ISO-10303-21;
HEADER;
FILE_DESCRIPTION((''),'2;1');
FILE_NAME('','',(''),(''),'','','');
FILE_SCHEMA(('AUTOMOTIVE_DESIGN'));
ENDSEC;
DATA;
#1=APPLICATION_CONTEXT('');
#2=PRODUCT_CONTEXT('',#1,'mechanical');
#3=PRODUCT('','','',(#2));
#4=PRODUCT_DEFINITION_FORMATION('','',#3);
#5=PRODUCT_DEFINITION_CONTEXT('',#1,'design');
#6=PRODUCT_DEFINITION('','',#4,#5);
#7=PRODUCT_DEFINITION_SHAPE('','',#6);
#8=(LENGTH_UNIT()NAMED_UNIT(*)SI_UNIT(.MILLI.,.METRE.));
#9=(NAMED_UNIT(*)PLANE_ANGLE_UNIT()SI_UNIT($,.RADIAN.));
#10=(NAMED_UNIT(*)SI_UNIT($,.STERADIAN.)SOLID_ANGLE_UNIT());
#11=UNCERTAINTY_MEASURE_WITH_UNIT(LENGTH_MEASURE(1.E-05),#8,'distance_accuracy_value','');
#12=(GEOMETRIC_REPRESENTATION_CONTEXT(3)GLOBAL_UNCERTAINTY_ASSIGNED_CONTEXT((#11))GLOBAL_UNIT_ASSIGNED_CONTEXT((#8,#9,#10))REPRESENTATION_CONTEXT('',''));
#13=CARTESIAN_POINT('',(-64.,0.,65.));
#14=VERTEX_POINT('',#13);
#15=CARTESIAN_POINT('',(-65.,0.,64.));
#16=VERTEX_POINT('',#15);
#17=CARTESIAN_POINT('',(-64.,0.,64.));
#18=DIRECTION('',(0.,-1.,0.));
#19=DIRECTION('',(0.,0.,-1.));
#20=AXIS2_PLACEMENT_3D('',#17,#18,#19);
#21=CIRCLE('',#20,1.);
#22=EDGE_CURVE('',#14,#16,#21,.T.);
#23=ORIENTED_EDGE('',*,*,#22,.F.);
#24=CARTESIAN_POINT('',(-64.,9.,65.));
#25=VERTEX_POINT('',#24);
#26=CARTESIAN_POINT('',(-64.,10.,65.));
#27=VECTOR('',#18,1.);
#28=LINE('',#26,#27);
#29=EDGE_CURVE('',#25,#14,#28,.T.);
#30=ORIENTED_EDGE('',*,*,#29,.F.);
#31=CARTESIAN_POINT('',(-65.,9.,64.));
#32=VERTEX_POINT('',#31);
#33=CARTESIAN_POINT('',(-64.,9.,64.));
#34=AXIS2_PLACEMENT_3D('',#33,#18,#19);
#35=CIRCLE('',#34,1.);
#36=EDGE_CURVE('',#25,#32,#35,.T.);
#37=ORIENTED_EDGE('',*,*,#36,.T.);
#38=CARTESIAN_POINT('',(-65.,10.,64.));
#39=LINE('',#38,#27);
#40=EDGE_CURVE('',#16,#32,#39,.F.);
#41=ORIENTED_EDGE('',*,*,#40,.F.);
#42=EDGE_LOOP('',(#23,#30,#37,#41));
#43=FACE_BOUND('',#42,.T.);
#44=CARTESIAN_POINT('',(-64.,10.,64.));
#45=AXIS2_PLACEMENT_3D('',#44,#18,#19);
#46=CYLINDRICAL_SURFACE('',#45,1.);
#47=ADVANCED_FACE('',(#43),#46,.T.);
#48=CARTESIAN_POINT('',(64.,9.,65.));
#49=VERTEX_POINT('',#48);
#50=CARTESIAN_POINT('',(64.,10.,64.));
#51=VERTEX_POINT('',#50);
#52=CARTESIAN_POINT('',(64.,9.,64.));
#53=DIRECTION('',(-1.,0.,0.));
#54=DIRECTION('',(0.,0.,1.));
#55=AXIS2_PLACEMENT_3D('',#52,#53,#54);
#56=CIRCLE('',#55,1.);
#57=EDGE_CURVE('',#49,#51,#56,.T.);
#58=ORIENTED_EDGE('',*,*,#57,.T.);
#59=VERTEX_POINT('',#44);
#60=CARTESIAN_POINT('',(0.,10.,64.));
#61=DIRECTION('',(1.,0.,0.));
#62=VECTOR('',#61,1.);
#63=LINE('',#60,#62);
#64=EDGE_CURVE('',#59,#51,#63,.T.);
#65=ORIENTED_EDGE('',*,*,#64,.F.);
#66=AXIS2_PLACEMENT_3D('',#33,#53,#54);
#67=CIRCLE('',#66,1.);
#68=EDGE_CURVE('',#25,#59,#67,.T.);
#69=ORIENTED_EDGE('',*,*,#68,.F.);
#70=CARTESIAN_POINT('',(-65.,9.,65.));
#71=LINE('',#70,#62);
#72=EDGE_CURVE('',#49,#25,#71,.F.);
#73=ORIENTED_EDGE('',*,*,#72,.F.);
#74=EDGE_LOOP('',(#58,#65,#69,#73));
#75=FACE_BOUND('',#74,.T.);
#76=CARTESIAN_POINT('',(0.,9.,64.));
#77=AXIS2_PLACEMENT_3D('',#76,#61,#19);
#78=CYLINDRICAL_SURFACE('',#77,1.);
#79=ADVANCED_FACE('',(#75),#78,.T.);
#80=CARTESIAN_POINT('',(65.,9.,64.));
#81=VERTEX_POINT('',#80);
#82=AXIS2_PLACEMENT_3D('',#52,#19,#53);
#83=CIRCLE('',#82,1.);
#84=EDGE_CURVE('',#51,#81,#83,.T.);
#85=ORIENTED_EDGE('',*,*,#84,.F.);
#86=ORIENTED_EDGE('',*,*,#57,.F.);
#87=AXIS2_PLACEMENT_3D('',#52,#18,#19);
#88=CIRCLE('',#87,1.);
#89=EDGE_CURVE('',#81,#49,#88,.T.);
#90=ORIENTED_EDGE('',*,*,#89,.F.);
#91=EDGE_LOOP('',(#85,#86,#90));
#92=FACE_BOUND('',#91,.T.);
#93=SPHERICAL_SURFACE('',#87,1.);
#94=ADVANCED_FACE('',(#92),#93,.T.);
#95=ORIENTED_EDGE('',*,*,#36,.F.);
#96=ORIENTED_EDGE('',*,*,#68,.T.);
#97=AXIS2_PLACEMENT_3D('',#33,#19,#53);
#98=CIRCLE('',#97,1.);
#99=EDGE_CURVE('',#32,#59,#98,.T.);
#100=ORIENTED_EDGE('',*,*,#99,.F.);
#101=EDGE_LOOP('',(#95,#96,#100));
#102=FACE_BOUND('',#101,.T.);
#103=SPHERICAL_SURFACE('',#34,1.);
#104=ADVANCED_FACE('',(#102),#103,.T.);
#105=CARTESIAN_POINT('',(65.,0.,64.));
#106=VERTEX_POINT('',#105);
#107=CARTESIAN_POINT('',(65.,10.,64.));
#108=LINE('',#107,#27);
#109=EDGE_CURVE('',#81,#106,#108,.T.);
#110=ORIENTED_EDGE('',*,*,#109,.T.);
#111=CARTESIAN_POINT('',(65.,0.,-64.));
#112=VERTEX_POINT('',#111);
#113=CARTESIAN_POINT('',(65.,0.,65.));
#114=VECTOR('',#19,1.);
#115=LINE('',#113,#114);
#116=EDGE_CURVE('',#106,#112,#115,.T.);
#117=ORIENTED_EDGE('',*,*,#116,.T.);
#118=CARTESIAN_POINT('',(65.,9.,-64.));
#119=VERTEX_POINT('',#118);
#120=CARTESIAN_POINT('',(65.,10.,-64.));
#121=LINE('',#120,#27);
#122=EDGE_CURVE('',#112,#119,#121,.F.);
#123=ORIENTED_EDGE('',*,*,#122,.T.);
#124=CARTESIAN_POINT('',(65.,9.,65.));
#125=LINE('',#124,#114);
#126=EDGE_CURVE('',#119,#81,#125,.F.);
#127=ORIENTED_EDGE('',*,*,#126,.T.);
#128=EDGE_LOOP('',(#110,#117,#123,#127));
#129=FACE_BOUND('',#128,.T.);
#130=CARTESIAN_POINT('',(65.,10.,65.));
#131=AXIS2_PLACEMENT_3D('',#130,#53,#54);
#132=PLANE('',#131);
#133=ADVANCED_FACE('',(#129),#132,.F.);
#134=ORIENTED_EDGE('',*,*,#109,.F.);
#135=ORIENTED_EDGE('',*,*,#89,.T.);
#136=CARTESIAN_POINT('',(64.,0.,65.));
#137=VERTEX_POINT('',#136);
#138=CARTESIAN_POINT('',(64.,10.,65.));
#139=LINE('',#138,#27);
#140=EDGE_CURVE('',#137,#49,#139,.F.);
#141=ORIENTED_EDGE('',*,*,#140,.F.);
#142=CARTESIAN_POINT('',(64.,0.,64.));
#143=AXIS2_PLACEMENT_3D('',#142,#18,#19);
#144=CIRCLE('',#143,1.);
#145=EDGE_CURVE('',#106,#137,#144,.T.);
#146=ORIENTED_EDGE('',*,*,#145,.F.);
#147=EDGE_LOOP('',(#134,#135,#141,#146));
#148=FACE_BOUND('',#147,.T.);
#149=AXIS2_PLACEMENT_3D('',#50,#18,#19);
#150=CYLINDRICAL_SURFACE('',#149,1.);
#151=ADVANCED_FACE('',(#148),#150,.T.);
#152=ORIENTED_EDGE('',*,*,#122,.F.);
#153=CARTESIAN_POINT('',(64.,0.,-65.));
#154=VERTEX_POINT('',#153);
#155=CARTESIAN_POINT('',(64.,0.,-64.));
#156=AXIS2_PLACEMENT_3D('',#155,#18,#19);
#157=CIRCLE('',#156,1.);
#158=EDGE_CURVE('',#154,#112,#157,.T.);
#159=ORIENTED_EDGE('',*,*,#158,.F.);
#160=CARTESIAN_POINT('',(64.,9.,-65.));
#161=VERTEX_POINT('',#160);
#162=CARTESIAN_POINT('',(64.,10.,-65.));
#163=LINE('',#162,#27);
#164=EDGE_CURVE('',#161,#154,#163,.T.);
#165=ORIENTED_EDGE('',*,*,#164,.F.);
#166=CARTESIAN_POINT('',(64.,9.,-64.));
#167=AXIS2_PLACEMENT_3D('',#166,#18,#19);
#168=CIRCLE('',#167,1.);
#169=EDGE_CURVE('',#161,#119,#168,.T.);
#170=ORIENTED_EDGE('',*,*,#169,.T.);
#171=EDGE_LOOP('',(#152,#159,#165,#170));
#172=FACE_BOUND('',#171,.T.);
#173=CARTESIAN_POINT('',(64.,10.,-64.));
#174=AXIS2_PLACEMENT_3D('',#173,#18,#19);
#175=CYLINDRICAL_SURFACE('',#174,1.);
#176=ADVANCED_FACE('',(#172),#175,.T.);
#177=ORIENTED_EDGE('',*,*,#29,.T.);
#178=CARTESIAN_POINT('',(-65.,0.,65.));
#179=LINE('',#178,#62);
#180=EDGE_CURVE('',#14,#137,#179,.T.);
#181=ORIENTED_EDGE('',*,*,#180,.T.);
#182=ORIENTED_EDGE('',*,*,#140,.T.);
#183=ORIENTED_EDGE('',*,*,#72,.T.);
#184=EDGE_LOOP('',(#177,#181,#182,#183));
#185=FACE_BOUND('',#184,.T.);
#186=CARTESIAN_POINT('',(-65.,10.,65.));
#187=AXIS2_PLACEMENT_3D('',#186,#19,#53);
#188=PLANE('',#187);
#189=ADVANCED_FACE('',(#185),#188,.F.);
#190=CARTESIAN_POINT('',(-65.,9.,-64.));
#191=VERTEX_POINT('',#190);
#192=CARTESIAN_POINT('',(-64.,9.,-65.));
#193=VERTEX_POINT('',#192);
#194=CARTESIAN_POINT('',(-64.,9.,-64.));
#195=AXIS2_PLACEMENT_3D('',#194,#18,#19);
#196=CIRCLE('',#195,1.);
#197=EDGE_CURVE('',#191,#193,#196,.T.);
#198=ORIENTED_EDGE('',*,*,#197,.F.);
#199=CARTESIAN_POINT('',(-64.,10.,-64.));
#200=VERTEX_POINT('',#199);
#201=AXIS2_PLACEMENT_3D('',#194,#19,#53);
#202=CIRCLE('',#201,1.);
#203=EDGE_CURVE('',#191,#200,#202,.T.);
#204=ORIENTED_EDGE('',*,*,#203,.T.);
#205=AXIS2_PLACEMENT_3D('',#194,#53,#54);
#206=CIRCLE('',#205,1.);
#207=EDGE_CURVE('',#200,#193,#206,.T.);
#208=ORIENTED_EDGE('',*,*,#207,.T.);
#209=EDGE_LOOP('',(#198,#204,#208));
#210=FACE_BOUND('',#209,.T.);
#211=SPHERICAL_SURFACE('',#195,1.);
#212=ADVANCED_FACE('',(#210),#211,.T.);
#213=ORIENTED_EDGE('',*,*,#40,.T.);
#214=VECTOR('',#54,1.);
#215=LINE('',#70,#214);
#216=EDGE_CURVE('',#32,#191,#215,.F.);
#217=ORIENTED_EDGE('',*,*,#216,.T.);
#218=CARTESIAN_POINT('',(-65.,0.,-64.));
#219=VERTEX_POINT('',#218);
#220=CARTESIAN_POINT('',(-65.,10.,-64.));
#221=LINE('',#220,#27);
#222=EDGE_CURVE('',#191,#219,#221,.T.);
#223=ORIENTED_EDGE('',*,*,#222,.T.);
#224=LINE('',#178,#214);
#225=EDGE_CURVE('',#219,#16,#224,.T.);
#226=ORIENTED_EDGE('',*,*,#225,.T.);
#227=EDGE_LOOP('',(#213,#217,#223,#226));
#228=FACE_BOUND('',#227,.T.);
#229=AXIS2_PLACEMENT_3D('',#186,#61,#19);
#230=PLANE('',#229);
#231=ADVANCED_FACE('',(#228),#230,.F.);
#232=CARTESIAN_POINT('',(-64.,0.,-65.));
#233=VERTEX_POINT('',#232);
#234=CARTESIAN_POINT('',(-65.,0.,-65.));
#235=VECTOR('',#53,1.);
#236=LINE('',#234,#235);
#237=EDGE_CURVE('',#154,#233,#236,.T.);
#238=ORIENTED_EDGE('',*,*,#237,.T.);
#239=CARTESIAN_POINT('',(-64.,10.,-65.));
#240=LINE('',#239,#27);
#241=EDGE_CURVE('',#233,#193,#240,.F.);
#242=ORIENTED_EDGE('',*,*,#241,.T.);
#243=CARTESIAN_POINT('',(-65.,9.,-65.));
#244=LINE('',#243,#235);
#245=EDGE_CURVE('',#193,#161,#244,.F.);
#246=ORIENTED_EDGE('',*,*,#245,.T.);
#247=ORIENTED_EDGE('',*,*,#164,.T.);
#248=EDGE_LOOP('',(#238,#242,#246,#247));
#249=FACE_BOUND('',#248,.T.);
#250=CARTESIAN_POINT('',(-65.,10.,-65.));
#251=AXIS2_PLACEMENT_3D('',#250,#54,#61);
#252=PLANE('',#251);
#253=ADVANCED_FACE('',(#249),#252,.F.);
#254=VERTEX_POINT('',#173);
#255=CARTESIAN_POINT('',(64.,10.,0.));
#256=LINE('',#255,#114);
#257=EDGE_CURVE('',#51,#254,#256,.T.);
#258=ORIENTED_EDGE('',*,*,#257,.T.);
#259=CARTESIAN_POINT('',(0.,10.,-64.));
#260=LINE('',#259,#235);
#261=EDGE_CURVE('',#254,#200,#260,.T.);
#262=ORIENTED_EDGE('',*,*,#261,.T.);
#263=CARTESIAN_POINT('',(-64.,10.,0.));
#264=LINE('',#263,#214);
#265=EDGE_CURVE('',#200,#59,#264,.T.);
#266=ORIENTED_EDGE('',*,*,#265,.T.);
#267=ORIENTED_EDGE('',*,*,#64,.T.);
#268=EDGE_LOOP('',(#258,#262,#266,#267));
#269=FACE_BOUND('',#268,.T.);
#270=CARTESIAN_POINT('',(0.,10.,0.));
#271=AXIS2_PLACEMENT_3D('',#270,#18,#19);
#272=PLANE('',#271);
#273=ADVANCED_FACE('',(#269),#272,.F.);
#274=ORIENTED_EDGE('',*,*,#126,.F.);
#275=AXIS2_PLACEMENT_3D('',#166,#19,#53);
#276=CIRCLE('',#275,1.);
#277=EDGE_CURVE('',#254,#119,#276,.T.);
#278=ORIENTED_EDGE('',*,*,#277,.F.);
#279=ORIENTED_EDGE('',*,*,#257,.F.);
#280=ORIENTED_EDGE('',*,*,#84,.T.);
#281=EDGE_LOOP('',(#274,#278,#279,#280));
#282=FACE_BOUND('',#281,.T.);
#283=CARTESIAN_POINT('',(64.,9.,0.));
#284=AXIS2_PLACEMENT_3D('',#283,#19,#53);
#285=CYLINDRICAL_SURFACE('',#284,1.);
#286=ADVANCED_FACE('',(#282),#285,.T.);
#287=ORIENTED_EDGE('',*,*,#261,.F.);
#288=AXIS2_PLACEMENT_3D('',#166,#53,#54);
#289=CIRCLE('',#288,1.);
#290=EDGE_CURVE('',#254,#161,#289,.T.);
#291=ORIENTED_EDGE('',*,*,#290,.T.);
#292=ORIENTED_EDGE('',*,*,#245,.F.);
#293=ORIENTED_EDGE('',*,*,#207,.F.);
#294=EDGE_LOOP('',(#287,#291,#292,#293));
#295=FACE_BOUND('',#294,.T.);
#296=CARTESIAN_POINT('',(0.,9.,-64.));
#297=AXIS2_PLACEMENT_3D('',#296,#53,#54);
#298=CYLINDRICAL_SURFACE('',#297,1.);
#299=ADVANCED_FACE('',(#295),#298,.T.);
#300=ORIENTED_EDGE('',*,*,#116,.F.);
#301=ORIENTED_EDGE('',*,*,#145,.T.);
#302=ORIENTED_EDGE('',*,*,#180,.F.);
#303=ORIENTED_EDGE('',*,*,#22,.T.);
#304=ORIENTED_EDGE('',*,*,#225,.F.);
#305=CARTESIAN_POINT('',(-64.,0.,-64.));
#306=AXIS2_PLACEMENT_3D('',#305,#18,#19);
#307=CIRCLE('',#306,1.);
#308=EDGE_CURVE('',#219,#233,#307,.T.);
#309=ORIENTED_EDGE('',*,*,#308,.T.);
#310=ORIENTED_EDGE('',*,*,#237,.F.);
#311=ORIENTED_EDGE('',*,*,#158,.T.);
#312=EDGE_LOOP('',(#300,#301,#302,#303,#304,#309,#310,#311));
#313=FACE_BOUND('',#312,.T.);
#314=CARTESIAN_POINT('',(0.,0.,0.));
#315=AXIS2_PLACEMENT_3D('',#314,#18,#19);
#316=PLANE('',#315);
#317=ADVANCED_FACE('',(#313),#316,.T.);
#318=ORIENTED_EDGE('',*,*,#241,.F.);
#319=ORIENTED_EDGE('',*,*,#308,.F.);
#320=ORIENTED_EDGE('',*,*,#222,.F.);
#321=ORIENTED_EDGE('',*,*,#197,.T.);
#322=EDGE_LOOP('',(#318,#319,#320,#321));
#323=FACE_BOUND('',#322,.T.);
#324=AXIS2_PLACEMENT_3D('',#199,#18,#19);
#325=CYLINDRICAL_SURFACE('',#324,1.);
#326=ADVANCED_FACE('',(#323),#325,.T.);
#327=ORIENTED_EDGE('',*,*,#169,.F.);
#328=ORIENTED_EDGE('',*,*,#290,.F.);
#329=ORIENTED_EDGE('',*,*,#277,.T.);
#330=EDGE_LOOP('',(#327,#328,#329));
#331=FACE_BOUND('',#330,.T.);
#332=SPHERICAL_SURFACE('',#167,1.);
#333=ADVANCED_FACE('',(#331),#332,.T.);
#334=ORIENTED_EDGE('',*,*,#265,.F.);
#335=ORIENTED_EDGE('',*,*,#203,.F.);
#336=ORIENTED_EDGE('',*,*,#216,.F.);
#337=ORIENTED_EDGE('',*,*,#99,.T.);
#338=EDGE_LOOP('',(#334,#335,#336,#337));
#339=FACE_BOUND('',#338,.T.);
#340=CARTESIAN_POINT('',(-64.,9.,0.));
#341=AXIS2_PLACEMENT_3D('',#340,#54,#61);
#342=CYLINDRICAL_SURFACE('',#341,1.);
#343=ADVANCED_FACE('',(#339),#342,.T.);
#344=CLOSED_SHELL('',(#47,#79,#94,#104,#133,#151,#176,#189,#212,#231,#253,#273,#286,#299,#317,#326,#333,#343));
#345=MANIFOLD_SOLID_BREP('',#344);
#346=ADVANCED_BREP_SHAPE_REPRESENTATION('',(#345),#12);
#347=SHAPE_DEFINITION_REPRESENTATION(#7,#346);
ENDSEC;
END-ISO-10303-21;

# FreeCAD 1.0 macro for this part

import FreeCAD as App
import Part
import Sketcher


def edges_at(feature, points):
    """Names of the edges that pass closest to the given points."""
    edges = feature.Shape.Edges
    near = lambda p: min(range(len(edges)), key=lambda i: edges[i].distToShape(Part.Vertex(*p))[0])
    return sorted({f"Edge{near(p) + 1}" for p in points})

doc = App.newDocument("Part")
body = doc.addObject("PartDesign::Body", "Body")

# Sketch on XZ plane
sketch1 = doc.addObject("Sketcher::SketchObject", "Sketch")
body.addObject(sketch1)
sketch1.AttachmentSupport = (doc.XZ_Plane, [""])
sketch1.MapMode = "FlatFace"
sketch1.addGeometry(Part.LineSegment(App.Vector(-65, -65, 0), App.Vector(-65, 65, 0)), False)
sketch1.addGeometry(Part.LineSegment(App.Vector(-65, 65, 0), App.Vector(65, 65, 0)), False)
sketch1.addGeometry(Part.LineSegment(App.Vector(65, 65, 0), App.Vector(65, -65, 0)), False)
sketch1.addGeometry(Part.LineSegment(App.Vector(65, -65, 0), App.Vector(-65, -65, 0)), False)
sketch1.addConstraint(Sketcher.Constraint("Coincident", 0, 2, 1, 1))
sketch1.addConstraint(Sketcher.Constraint("Coincident", 1, 2, 2, 1))
sketch1.addConstraint(Sketcher.Constraint("Coincident", 2, 2, 3, 1))
sketch1.addConstraint(Sketcher.Constraint("Coincident", 3, 2, 0, 1))
sketch1.addConstraint(Sketcher.Constraint("Vertical", 0))
sketch1.addConstraint(Sketcher.Constraint("Horizontal", 1))
sketch1.addConstraint(Sketcher.Constraint("Vertical", 2))
sketch1.addConstraint(Sketcher.Constraint("Horizontal", 3))
sketch1.addConstraint(Sketcher.Constraint("Symmetric", 0, 2, 2, 2, -1, 1))
sketch1.addConstraint(Sketcher.Constraint("Equal", 3, 0))
sketch1.addConstraint(Sketcher.Constraint("DistanceX", 1, 1, 1, 2, 130.0))
pad1 = doc.addObject("PartDesign::Pad", "Pad")
body.addObject(pad1)
pad1.Profile = sketch1
pad1.Length = 10
pad1.Reversed = True
doc.recompute()

fillet = doc.addObject("PartDesign::Fillet", "Fillet")
body.addObject(fillet)
fillet.Base = (pad1, edges_at(pad1, [
    (65, 5, 65),
    (-65, 5, 65),
    (-65, 5, -65),
    (65, 5, -65),
]))
fillet.Radius = 1
doc.recompute()

fillet2 = doc.addObject("PartDesign::Fillet", "Fillet001")
body.addObject(fillet2)
fillet2.Base = (fillet, edges_at(fillet, [
    (0, 10, 65),
    (-65, 10, 0),
    (65, 10, 0),
    (0, 10, -65),
    (-64.707, 10, -64.707),
    (64.707, 10, -64.707),
    (64.707, 10, 64.707),
    (-64.707, 10, 64.707),
]))
fillet2.Radius = 1

doc.recompute()
